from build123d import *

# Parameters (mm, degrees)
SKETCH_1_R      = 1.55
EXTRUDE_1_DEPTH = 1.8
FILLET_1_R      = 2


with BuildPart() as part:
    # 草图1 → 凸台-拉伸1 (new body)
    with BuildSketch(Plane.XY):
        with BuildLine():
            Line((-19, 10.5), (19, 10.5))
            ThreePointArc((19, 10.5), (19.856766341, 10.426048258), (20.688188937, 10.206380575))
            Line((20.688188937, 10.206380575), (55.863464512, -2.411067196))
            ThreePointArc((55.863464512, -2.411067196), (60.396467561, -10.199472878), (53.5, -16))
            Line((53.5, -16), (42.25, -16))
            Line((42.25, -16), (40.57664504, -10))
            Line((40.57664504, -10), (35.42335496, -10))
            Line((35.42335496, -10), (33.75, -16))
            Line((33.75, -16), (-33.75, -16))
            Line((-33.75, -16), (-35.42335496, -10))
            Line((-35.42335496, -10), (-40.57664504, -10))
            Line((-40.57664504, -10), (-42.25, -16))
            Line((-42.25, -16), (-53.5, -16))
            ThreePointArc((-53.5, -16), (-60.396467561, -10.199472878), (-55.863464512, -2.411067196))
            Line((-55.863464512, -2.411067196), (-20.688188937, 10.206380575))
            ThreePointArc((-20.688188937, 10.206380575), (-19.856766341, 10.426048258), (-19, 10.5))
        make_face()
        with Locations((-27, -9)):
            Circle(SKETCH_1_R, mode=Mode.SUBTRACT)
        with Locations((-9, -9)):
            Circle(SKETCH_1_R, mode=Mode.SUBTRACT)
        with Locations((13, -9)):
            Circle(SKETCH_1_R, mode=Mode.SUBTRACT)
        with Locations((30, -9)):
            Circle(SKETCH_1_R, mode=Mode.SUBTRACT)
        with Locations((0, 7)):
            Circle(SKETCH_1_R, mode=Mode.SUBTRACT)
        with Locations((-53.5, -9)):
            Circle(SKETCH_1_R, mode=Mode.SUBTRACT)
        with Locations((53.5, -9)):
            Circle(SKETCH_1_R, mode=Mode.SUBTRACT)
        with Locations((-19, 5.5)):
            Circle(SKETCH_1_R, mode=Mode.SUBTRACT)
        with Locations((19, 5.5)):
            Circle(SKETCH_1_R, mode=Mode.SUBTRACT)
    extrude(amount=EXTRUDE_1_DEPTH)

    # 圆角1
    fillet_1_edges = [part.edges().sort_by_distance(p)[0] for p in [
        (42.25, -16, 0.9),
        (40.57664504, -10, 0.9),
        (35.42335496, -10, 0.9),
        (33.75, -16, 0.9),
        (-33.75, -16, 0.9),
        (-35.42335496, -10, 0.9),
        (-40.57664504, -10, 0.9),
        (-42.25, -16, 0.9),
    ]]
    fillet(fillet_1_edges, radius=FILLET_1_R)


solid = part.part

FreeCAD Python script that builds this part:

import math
import FreeCAD as App
import Part
import Sketcher
from FreeCAD import Vector
Q = App.Units.Quantity


def edges_at(feature, points):
    """Names of the edges that pass closest to the given points."""
    edges = feature.Shape.Edges
    near = lambda p: min(range(len(edges)), key=lambda i: edges[i].distToShape(Part.Vertex(*p))[0])
    return sorted({f"Edge{near(p) + 1}" for p in points})

doc = App.newDocument("Part")
body = doc.addObject("PartDesign::Body", "Body")

# Sketch on XY plane
sketch1 = body.newObject("Sketcher::SketchObject", "Sketch")
sketch1.AttachmentSupport = (doc.getObject("XY_Plane"), [""])
sketch1.MapMode = "FlatFace"
sketch1.addGeometry([
    Part.LineSegment(Vector(19, 10.5, 0), Vector(-19, 10.5, 0)),  # 0
    Part.ArcOfCircle(Part.Circle(Vector(-19, 5.5, 0), Vector(0, 0, 1), 5), math.radians(90), math.radians(109.73)),  # 1
    Part.LineSegment(Vector(-20.7, 10.2, 0), Vector(-55.9, -2.4, 0)),  # 2
    Part.ArcOfCircle(Part.Circle(Vector(-53.5, -9, 0), Vector(0, 0, 1), 7), math.radians(110), math.radians(270)),  # 3
    Part.LineSegment(Vector(-53.5, -16, 0), Vector(-42.2, -16, 0)),  # 4
    Part.LineSegment(Vector(-42.2, -16, 0), Vector(-40.6, -10, 0)),  # 5
    Part.LineSegment(Vector(-40.6, -10, 0), Vector(-35.4, -10, 0)),  # 6
    Part.LineSegment(Vector(-35.4, -10, 0), Vector(-33.8, -16, 0)),  # 7
    Part.LineSegment(Vector(-33.8, -16, 0), Vector(33.8, -16, 0)),  # 8
    Part.LineSegment(Vector(33.8, -16, 0), Vector(35.4, -10, 0)),  # 9
    Part.LineSegment(Vector(35.4, -10, 0), Vector(40.6, -10, 0)),  # 10
    Part.LineSegment(Vector(40.6, -10, 0), Vector(42.2, -16, 0)),  # 11
    Part.LineSegment(Vector(42.2, -16, 0), Vector(53.5, -16, 0)),  # 12
    Part.ArcOfCircle(Part.Circle(Vector(53.5, -9, 0), Vector(0, 0, 1), 7), math.radians(-90), math.radians(70)),  # 13
    Part.LineSegment(Vector(55.9, -2.4, 0), Vector(20.7, 10.2, 0)),  # 14
    Part.ArcOfCircle(Part.Circle(Vector(19, 5.5, 0), Vector(0, 0, 1), 5), math.radians(70.27), math.radians(90)),  # 15
    Part.Circle(Vector(53.5, -9, 0), Vector(0, 0, 1), 1.6),  # 16
    Part.Circle(Vector(30, -9, 0), Vector(0, 0, 1), 1.6),  # 17
    Part.Circle(Vector(13, -9, 0), Vector(0, 0, 1), 1.6),  # 18
    Part.Circle(Vector(-9, -9, 0), Vector(0, 0, 1), 1.6),  # 19
    Part.Circle(Vector(-27, -9, 0), Vector(0, 0, 1), 1.6),  # 20
    Part.Circle(Vector(-53.5, -9, 0), Vector(0, 0, 1), 1.6),  # 21
    Part.Circle(Vector(19, 5.5, 0), Vector(0, 0, 1), 1.6),  # 22
    Part.Circle(Vector(-19, 5.5, 0), Vector(0, 0, 1), 1.6),  # 23
    Part.Circle(Vector(0, 7, 0), Vector(0, 0, 1), 1.6),  # 24
], False)
sketch1.addConstraint([
    Sketcher.Constraint("Tangent", 0, 2, 1, 1),
    Sketcher.Constraint("Tangent", 1, 2, 2, 1),
    Sketcher.Constraint("Tangent", 2, 2, 3, 1),
    Sketcher.Constraint("Tangent", 3, 2, 4, 1),
    Sketcher.Constraint("Coincident", 4, 2, 5, 1),
    Sketcher.Constraint("Coincident", 5, 2, 6, 1),
    Sketcher.Constraint("Coincident", 6, 2, 7, 1),
    Sketcher.Constraint("Coincident", 7, 2, 8, 1),
    Sketcher.Constraint("Coincident", 8, 2, 9, 1),
    Sketcher.Constraint("Coincident", 9, 2, 10, 1),
    Sketcher.Constraint("Coincident", 10, 2, 11, 1),
    Sketcher.Constraint("Coincident", 11, 2, 12, 1),
    Sketcher.Constraint("Tangent", 12, 2, 13, 1),
    Sketcher.Constraint("Tangent", 13, 2, 14, 1),
    Sketcher.Constraint("Tangent", 14, 2, 15, 1),
    Sketcher.Constraint("Tangent", 15, 2, 0, 1),
    Sketcher.Constraint("Horizontal", 0),
    Sketcher.Constraint("Horizontal", 4),
    Sketcher.Constraint("Horizontal", 6),
    Sketcher.Constraint("Horizontal", 8),
    Sketcher.Constraint("Horizontal", 10),
    Sketcher.Constraint("Horizontal", 12),
    Sketcher.Constraint("Coincident", 16, 3, 13, 3),
    Sketcher.Constraint("Coincident", 21, 3, 3, 3),
    Sketcher.Constraint("Coincident", 22, 3, 15, 3),
    Sketcher.Constraint("Coincident", 23, 3, 1, 3),
    Sketcher.Constraint("Equal", 3, 13),
    Sketcher.Constraint("Equal", 1, 15),
    Sketcher.Constraint("Equal", 16, 17),
    Sketcher.Constraint("Equal", 17, 18),
    Sketcher.Constraint("Equal", 18, 19),
    Sketcher.Constraint("Equal", 19, 20),
    Sketcher.Constraint("Equal", 20, 21),
    Sketcher.Constraint("Equal", 21, 22),
    Sketcher.Constraint("Equal", 22, 23),
    Sketcher.Constraint("Equal", 23, 24),
    Sketcher.Constraint("Symmetric", 3, 3, 13, 3, -2),
    Sketcher.Constraint("Symmetric", 6, 2, 9, 2, -2),
    Sketcher.Constraint("PointOnObject", 24, 3, -2),
    Sketcher.Constraint("Parallel", 5, 9),
    Sketcher.Constraint("Parallel", 7, 11),
    Sketcher.Constraint("Horizontal", 16, 3, 17, 3),
    Sketcher.Constraint("Horizontal", 17, 3, 18, 3),
    Sketcher.Constraint("Horizontal", 18, 3, 19, 3),
    Sketcher.Constraint("Horizontal", 19, 3, 20, 3),
    Sketcher.Constraint("Horizontal", 4, 2, 7, 2),
    Sketcher.Constraint("Horizontal", 2, 2, 13, 2),
    Sketcher.Constraint("Equal", 6, 10),
    Sketcher.Constraint("Equal", 4, 12),
    Sketcher.Constraint("Radius", 1, Q("5 mm")),
    Sketcher.Constraint("Radius", 3, Q("7 mm")),
    Sketcher.Constraint("Diameter", 16, Q("3.1 mm")),
    Sketcher.Constraint("DistanceX", 0, 2, 0, 1, Q("38 mm")),
    Sketcher.Constraint("DistanceX", 8, 1, 8, 2, Q("67.5 mm")),
    Sketcher.Constraint("DistanceY", 3, 3, -1, 1, Q("9 mm")),
    Sketcher.Constraint("DistanceX", -1, 1, 17, 3, Q("30 mm")),
    Sketcher.Constraint("DistanceX", -1, 1, 18, 3, Q("13 mm")),
    Sketcher.Constraint("DistanceX", 19, 3, -1, 1, Q("9 mm")),
    Sketcher.Constraint("DistanceX", 20, 3, -1, 1, Q("27 mm")),
    Sketcher.Constraint("DistanceY", -1, 1, 24, 3, Q("7 mm")),
    Sketcher.Constraint("DistanceY", 5, 2, -1, 1, Q("10 mm")),
    Sketcher.Constraint("DistanceX", 3, 3, 13, 3, Q("107 mm")),
    Sketcher.Constraint("DistanceX", 4, 1, 4, 2, Q("11.25 mm")),
    Sketcher.Constraint("DistanceY", -1, 1, 1, 3, Q("5.5 mm")),
    Sketcher.Constraint("DistanceX", 6, 1, 6, 2, Q("5.15329 mm")),
])
pad1 = body.newObject("PartDesign::Pad", "Pad")
pad1.Profile = sketch1
pad1.Length = 1.8
doc.recompute()

fillet = body.newObject("PartDesign::Fillet", "Fillet")
fillet.Base = (pad1, edges_at(pad1, [
    (42.25, -16, 0.9),
    (40.577, -10, 0.9),
    (35.423, -10, 0.9),
    (33.75, -16, 0.9),
    (-33.75, -16, 0.9),
    (-35.423, -10, 0.9),
    (-40.577, -10, 0.9),
    (-42.25, -16, 0.9),
]))
fillet.Radius = 2

doc.recompute()
